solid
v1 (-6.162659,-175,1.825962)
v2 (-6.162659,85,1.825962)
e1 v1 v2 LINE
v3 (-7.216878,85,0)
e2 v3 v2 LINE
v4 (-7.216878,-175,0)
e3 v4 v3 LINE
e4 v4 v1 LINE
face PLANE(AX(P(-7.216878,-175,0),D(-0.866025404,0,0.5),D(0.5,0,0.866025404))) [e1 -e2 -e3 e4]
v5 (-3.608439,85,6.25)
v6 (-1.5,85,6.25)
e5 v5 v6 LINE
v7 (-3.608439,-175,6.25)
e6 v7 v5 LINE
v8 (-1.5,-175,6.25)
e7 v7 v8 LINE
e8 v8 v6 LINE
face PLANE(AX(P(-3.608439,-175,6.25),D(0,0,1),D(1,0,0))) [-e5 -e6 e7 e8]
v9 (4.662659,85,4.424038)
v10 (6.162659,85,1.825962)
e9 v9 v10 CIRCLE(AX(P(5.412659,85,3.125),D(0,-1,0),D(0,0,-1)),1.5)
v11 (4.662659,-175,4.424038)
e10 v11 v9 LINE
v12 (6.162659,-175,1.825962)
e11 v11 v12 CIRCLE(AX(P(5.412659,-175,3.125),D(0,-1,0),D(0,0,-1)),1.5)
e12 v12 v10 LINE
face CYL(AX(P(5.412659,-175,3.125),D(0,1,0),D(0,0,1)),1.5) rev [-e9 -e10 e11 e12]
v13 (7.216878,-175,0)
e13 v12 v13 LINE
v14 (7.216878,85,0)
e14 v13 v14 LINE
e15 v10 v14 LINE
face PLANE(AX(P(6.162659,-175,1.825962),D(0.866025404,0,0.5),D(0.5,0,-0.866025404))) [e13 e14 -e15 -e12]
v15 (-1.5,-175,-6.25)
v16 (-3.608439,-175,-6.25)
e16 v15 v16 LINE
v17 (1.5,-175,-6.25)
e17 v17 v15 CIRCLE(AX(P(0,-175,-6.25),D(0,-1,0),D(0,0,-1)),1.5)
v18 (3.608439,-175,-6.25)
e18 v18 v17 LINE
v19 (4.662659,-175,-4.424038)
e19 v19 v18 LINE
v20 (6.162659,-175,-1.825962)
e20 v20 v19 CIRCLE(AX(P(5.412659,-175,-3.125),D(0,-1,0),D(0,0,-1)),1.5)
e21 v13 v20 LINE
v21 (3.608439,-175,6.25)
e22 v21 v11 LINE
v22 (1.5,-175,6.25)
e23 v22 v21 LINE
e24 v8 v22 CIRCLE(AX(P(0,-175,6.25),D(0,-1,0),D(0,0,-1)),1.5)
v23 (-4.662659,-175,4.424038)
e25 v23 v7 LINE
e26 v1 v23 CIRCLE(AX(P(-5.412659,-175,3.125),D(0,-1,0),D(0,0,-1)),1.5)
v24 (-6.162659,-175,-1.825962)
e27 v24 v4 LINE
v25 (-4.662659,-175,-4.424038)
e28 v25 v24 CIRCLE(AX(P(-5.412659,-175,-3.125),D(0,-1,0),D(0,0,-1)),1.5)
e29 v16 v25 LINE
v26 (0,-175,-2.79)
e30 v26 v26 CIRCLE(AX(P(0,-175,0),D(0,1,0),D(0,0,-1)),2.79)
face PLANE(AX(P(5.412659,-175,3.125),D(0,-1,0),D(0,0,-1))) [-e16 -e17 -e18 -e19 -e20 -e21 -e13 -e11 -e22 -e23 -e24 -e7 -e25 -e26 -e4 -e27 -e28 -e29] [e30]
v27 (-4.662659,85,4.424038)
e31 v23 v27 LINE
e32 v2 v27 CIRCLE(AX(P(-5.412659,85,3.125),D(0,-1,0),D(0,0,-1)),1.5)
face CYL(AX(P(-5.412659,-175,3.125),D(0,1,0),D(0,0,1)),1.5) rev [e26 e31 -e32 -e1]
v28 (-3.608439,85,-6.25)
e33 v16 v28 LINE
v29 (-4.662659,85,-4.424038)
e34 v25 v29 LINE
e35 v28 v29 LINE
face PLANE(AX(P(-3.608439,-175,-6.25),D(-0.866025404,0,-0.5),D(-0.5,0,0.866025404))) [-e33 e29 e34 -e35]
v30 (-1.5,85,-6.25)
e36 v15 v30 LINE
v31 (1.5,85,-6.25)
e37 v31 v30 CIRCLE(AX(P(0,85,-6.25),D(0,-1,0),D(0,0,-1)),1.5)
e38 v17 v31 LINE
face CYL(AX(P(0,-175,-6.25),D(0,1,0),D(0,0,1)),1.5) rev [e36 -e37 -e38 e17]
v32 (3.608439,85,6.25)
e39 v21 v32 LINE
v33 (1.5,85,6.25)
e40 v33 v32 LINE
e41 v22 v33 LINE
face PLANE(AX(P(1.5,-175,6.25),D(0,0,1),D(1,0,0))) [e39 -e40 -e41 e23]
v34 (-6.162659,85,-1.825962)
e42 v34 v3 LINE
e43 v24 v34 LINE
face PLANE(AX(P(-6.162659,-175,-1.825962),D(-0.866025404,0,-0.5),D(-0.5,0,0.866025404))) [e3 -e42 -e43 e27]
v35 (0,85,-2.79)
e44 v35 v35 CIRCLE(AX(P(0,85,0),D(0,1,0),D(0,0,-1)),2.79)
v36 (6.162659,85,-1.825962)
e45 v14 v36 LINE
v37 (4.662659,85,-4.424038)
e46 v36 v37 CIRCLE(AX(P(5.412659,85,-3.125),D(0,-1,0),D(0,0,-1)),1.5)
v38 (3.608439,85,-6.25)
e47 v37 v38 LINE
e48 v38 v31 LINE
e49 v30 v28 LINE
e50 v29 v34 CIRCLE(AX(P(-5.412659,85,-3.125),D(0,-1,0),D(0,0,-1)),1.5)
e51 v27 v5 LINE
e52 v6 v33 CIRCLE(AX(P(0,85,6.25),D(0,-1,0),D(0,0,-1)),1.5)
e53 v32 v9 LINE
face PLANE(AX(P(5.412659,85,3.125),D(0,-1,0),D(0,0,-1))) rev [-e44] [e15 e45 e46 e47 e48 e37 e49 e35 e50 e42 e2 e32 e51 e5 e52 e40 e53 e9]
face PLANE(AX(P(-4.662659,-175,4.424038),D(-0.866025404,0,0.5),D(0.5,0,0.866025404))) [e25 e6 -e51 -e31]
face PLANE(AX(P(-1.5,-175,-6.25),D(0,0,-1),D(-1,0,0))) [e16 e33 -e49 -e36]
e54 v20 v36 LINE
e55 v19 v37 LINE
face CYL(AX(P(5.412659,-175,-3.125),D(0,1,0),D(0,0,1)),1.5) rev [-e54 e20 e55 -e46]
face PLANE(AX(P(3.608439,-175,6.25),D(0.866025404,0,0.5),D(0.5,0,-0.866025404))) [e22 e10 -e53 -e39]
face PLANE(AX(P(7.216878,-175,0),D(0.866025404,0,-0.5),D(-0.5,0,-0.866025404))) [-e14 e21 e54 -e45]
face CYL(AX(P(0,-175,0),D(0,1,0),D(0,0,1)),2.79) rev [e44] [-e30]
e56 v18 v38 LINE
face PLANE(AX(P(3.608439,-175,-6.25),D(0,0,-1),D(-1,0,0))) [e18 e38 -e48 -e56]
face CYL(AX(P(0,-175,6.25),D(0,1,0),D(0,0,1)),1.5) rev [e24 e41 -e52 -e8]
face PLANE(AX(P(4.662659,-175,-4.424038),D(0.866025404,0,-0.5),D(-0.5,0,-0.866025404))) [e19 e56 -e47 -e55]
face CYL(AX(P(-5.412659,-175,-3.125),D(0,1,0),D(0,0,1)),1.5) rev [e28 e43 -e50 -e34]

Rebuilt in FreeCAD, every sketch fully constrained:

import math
import FreeCAD as App
import Part
import Sketcher
from FreeCAD import Vector
Q = App.Units.Quantity

doc = App.newDocument("Part")
body = doc.addObject("PartDesign::Body", "Body")

# Sketch on XZ plane
sketch1 = body.newObject("Sketcher::SketchObject", "Sketch")
sketch1.AttachmentSupport = (doc.getObject("XZ_Plane"), [""])
sketch1.MapMode = "FlatFace"
sketch1.AttachmentOffset = App.Placement(Vector(0, 0, -85), App.Rotation())
sketch1.addGeometry(Part.LineSegment(Vector(6.2, 1.8, 0), Vector(7.2, 0, 0)), False)
sketch1.addGeometry(Part.LineSegment(Vector(7.2, 0, 0), Vector(6.2, -1.8, 0)), False)
sketch1.addGeometry(Part.ArcOfCircle(Part.Circle(Vector(5.4, -3.1, 0), Vector(0, 0, 1), 1.5), math.radians(60), math.radians(240)), False)
sketch1.addGeometry(Part.LineSegment(Vector(4.7, -4.4, 0), Vector(3.6, -6.2, 0)), False)
sketch1.addGeometry(Part.LineSegment(Vector(3.6, -6.2, 0), Vector(1.5, -6.2, 0)), False)
sketch1.addGeometry(Part.ArcOfCircle(Part.Circle(Vector(0, -6.2, 0), Vector(0, 0, 1), 1.5), math.radians(0), math.radians(180)), False)
sketch1.addGeometry(Part.LineSegment(Vector(-1.5, -6.2, 0), Vector(-3.6, -6.2, 0)), False)
sketch1.addGeometry(Part.LineSegment(Vector(-3.6, -6.2, 0), Vector(-4.7, -4.4, 0)), False)
sketch1.addGeometry(Part.ArcOfCircle(Part.Circle(Vector(-5.4, -3.1, 0), Vector(0, 0, 1), 1.5), math.radians(-60), math.radians(120)), False)
sketch1.addGeometry(Part.LineSegment(Vector(-6.2, -1.8, 0), Vector(-7.2, 0, 0)), False)
sketch1.addGeometry(Part.LineSegment(Vector(-7.2, 0, 0), Vector(-6.2, 1.8, 0)), False)
sketch1.addGeometry(Part.ArcOfCircle(Part.Circle(Vector(-5.4, 3.1, 0), Vector(0, 0, 1), 1.5), math.radians(-120), math.radians(60)), False)
sketch1.addGeometry(Part.LineSegment(Vector(-4.7, 4.4, 0), Vector(-3.6, 6.2, 0)), False)
sketch1.addGeometry(Part.LineSegment(Vector(-3.6, 6.2, 0), Vector(-1.5, 6.2, 0)), False)
sketch1.addGeometry(Part.ArcOfCircle(Part.Circle(Vector(0, 6.2, 0), Vector(0, 0, 1), 1.5), math.radians(180), math.radians(360)), False)
sketch1.addGeometry(Part.LineSegment(Vector(1.5, 6.2, 0), Vector(3.6, 6.2, 0)), False)
sketch1.addGeometry(Part.LineSegment(Vector(3.6, 6.2, 0), Vector(4.7, 4.4, 0)), False)
sketch1.addGeometry(Part.ArcOfCircle(Part.Circle(Vector(5.4, 3.1, 0), Vector(0, 0, 1), 1.5), math.radians(120), math.radians(300)), False)
sketch1.addGeometry(Part.Circle(Vector(0, 0, 0), Vector(0, 0, 1), 2.8), False)
sketch1.addConstraint(Sketcher.Constraint("Coincident", 0, 2, 1, 1))
sketch1.addConstraint(Sketcher.Constraint("Coincident", 1, 2, 2, 1))
sketch1.addConstraint(Sketcher.Constraint("Coincident", 2, 2, 3, 1))
sketch1.addConstraint(Sketcher.Constraint("Coincident", 3, 2, 4, 1))
sketch1.addConstraint(Sketcher.Constraint("Coincident", 4, 2, 5, 1))
sketch1.addConstraint(Sketcher.Constraint("Coincident", 5, 2, 6, 1))
sketch1.addConstraint(Sketcher.Constraint("Coincident", 6, 2, 7, 1))
sketch1.addConstraint(Sketcher.Constraint("Coincident", 7, 2, 8, 1))
sketch1.addConstraint(Sketcher.Constraint("Coincident", 8, 2, 9, 1))
sketch1.addConstraint(Sketcher.Constraint("Coincident", 9, 2, 10, 1))
sketch1.addConstraint(Sketcher.Constraint("Coincident", 10, 2, 11, 1))
sketch1.addConstraint(Sketcher.Constraint("Coincident", 11, 2, 12, 1))
sketch1.addConstraint(Sketcher.Constraint("Coincident", 12, 2, 13, 1))
sketch1.addConstraint(Sketcher.Constraint("Coincident", 13, 2, 14, 1))
sketch1.addConstraint(Sketcher.Constraint("Coincident", 14, 2, 15, 1))
sketch1.addConstraint(Sketcher.Constraint("Coincident", 15, 2, 16, 1))
sketch1.addConstraint(Sketcher.Constraint("Coincident", 16, 2, 17, 1))
sketch1.addConstraint(Sketcher.Constraint("Coincident", 17, 2, 0, 1))
sketch1.addConstraint(Sketcher.Constraint("Horizontal", 4))
sketch1.addConstraint(Sketcher.Constraint("Horizontal", 6))
sketch1.addConstraint(Sketcher.Constraint("Horizontal", 13))
sketch1.addConstraint(Sketcher.Constraint("Horizontal", 15))
sketch1.addConstraint(Sketcher.Constraint("Coincident", 18, 3, -1, 1))
sketch1.addConstraint(Sketcher.Constraint("Equal", 2, 5))
sketch1.addConstraint(Sketcher.Constraint("Equal", 5, 8))
sketch1.addConstraint(Sketcher.Constraint("Equal", 8, 11))
sketch1.addConstraint(Sketcher.Constraint("Equal", 11, 14))
sketch1.addConstraint(Sketcher.Constraint("Equal", 14, 17))
sketch1.addConstraint(Sketcher.Constraint("Symmetric", 2, 3, 11, 3, -1, 1))
sketch1.addConstraint(Sketcher.Constraint("Symmetric", 5, 3, 14, 3, -1, 1))
sketch1.addConstraint(Sketcher.Constraint("Symmetric", 8, 3, 17, 3, -1, 1))
sketch1.addConstraint(Sketcher.Constraint("Symmetric", 0, 2, 9, 2, -1, 1))
sketch1.addConstraint(Sketcher.Constraint("Symmetric", 3, 2, 12, 2, -1, 1))
sketch1.addConstraint(Sketcher.Constraint("Symmetric", 6, 2, 15, 2, -1, 1))
sketch1.addConstraint(Sketcher.Constraint("Symmetric", 2, 3, 8, 3, -2))
sketch1.addConstraint(Sketcher.Constraint("Symmetric", 4, 2, 5, 2, -2))
sketch1.addConstraint(Sketcher.Constraint("PointOnObject", 0, 2, -1))
sketch1.addConstraint(Sketcher.Constraint("Parallel", 1, 3))
sketch1.addConstraint(Sketcher.Constraint("Parallel", 0, 7))
sketch1.addConstraint(Sketcher.Constraint("Parallel", 7, 9))
sketch1.addConstraint(Sketcher.Constraint("Parallel", 3, 10))
sketch1.addConstraint(Sketcher.Constraint("Parallel", 10, 12))
sketch1.addConstraint(Sketcher.Constraint("Parallel", 9, 16))
sketch1.addConstraint(Sketcher.Constraint("Horizontal", 5, 3, 3, 2))
sketch1.addConstraint(Sketcher.Constraint("Horizontal", 2, 2, 7, 2))
sketch1.addConstraint(Sketcher.Constraint("Horizontal", 1, 2, 8, 2))
sketch1.addConstraint(Sketcher.Constraint("Equal", 1, 3))
sketch1.addConstraint(Sketcher.Constraint("Radius", 2, 1.5))
sketch1.addConstraint(Sketcher.Constraint("Diameter", 18, 5.58))
sketch1.addConstraint(Sketcher.Constraint("Angle", 0, Q("-60 deg")))
sketch1.addConstraint(Sketcher.Constraint("DistanceY", 5, 3, 14, 3, 12.5))
sketch1.addConstraint(Sketcher.Constraint("DistanceX", 2, 2, 1, 2, 1.5))
sketch1.addConstraint(Sketcher.Constraint("DistanceY", 8, 3, 11, 3, 6.25))
sketch1.addConstraint(Sketcher.Constraint("DistanceX", 4, 2, 4, 1, 2.108439))
pad1 = body.newObject("PartDesign::Pad", "Pad")
pad1.Profile = sketch1
pad1.Length = 260

doc.recompute()
